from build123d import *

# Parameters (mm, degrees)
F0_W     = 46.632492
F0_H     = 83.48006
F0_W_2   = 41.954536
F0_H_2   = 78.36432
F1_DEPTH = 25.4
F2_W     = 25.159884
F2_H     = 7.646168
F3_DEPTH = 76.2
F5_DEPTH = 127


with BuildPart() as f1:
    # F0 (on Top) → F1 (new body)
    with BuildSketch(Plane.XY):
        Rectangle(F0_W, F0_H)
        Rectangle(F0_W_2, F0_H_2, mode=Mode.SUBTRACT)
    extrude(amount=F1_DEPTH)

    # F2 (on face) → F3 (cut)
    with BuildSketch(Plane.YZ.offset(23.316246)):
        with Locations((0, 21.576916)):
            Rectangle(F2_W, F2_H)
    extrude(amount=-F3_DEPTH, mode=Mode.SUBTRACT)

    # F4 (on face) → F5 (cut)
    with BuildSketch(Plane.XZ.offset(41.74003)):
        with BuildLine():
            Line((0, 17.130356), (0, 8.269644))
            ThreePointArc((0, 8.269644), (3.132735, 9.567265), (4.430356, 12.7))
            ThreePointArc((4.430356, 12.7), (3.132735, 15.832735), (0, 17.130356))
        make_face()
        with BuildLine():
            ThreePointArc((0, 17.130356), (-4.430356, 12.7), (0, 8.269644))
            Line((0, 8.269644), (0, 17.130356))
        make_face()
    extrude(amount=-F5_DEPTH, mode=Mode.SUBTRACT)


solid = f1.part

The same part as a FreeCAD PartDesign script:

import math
import FreeCAD as App
import Part
import Sketcher
from FreeCAD import Vector
Q = App.Units.Quantity


def add_polygon(sketch, points):
    """Adds a closed chain of lines whose ends are joined by coincident constraints."""
    first, n = sketch.GeometryCount, len(points)
    for a, b in zip(points, points[1:] + points[:1]):
        sketch.addGeometry(Part.LineSegment(App.Vector(*a, 0), App.Vector(*b, 0)), False)
    for i in range(n):
        sketch.addConstraint(Sketcher.Constraint("Coincident", first + i, 2, first + (i + 1) % n, 1))

doc = App.newDocument("Part")
body = doc.addObject("PartDesign::Body", "Body")

# Sketch on XY plane
sketch1 = body.newObject("Sketcher::SketchObject", "Sketch")
sketch1.AttachmentSupport = (doc.getObject("XY_Plane"), [""])
sketch1.MapMode = "FlatFace"
add_polygon(sketch1, [(-23, 42), (-23, -42), (23, -42), (23, 42)])  # lines 0-3
add_polygon(sketch1, [(21, -39), (-21, -39), (-21, 39), (21, 39)])  # lines 4-7
sketch1.addConstraint([
    Sketcher.Constraint("Vertical", 0),
    Sketcher.Constraint("Horizontal", 1),
    Sketcher.Constraint("Vertical", 2),
    Sketcher.Constraint("Horizontal", 3),
    Sketcher.Constraint("Horizontal", 4),
    Sketcher.Constraint("Vertical", 5),
    Sketcher.Constraint("Horizontal", 6),
    Sketcher.Constraint("Vertical", 7),
    Sketcher.Constraint("Symmetric", 0, 2, 2, 2, -1, 1),
    Sketcher.Constraint("Symmetric", 4, 2, 6, 2, -1, 1),
    Sketcher.Constraint("DistanceY", 0, 2, 0, 1, Q("83.48006 mm")),
    Sketcher.Constraint("DistanceY", 5, 1, 5, 2, Q("78.36432 mm")),
    Sketcher.Constraint("DistanceX", 1, 1, 1, 2, Q("46.632492 mm")),
    Sketcher.Constraint("DistanceX", 4, 2, 4, 1, Q("41.954536 mm")),
])
pad1 = body.newObject("PartDesign::Pad", "Pad")
pad1.Profile = sketch1
pad1.Length = Q("1 in")

# Sketch on YZ plane
sketch2 = body.newObject("Sketcher::SketchObject", "Sketch001")
sketch2.AttachmentSupport = (doc.getObject("YZ_Plane"), [""])
sketch2.MapMode = "FlatFace"
sketch2.AttachmentOffset = App.Placement(Vector(0, 0, 23.316246), App.Rotation())
add_polygon(sketch2, [(-13, 25), (-13, 18), (13, 18), (13, 25)])  # lines 0-3
sketch2.addConstraint([
    Sketcher.Constraint("Vertical", 0),
    Sketcher.Constraint("Horizontal", 1),
    Sketcher.Constraint("Vertical", 2),
    Sketcher.Constraint("Horizontal", 3),
    Sketcher.Constraint("DistanceY", -1, 1, 2, 2, Q("1 in")),
    Sketcher.Constraint("DistanceX", 1, 1, 1, 2, Q("25.159884 mm")),
    Sketcher.Constraint("DistanceY", 0, 2, 0, 1, Q("7.646168 mm")),
    Sketcher.Constraint("DistanceX", 0, 2, -1, 1, Q("12.579942 mm")),
])
pocket1 = body.newObject("PartDesign::Pocket", "Pocket")
pocket1.Profile = sketch2
pocket1.Length = Q("3 in")

# Sketch on XZ plane
sketch3 = body.newObject("Sketcher::SketchObject", "Sketch002")
sketch3.AttachmentSupport = (doc.getObject("XZ_Plane"), [""])
sketch3.MapMode = "FlatFace"
sketch3.AttachmentOffset = App.Placement(Vector(0, 0, 41.74003), App.Rotation())
sketch3.addGeometry([
    Part.ArcOfCircle(Part.Circle(Vector(0, 12.7, 0), Vector(0, 0, 1), 4.4), math.radians(-90), math.radians(0)),
    Part.ArcOfCircle(Part.Circle(Vector(0, 12.7, 0), Vector(0, 0, 1), 4.4), math.radians(0), math.radians(90)),
    Part.ArcOfCircle(Part.Circle(Vector(0, 12.7, 0), Vector(0, 0, 1), 4.4), math.radians(90), math.radians(270)),
], False)
sketch3.addConstraint([
    Sketcher.Constraint("Tangent", 0, 2, 1, 1),
    Sketcher.Constraint("Tangent", 1, 2, 2, 1),
    Sketcher.Constraint("Tangent", 2, 2, 0, 1),
    Sketcher.Constraint("PointOnObject", 0, 3, -2),
    Sketcher.Constraint("PointOnObject", 1, 2, -2),
    Sketcher.Constraint("PointOnObject", 2, 2, -2),
    Sketcher.Constraint("Horizontal", 2, 3, 0, 2),
    Sketcher.Constraint("DistanceY", -1, 1, 0, 3, Q("0.5 in")),
    Sketcher.Constraint("Radius", 0, Q("4.430355 mm")),
])
pocket2 = body.newObject("PartDesign::Pocket", "Pocket001")
pocket2.Profile = sketch3
pocket2.Length = Q("5 in")

doc.recompute()
